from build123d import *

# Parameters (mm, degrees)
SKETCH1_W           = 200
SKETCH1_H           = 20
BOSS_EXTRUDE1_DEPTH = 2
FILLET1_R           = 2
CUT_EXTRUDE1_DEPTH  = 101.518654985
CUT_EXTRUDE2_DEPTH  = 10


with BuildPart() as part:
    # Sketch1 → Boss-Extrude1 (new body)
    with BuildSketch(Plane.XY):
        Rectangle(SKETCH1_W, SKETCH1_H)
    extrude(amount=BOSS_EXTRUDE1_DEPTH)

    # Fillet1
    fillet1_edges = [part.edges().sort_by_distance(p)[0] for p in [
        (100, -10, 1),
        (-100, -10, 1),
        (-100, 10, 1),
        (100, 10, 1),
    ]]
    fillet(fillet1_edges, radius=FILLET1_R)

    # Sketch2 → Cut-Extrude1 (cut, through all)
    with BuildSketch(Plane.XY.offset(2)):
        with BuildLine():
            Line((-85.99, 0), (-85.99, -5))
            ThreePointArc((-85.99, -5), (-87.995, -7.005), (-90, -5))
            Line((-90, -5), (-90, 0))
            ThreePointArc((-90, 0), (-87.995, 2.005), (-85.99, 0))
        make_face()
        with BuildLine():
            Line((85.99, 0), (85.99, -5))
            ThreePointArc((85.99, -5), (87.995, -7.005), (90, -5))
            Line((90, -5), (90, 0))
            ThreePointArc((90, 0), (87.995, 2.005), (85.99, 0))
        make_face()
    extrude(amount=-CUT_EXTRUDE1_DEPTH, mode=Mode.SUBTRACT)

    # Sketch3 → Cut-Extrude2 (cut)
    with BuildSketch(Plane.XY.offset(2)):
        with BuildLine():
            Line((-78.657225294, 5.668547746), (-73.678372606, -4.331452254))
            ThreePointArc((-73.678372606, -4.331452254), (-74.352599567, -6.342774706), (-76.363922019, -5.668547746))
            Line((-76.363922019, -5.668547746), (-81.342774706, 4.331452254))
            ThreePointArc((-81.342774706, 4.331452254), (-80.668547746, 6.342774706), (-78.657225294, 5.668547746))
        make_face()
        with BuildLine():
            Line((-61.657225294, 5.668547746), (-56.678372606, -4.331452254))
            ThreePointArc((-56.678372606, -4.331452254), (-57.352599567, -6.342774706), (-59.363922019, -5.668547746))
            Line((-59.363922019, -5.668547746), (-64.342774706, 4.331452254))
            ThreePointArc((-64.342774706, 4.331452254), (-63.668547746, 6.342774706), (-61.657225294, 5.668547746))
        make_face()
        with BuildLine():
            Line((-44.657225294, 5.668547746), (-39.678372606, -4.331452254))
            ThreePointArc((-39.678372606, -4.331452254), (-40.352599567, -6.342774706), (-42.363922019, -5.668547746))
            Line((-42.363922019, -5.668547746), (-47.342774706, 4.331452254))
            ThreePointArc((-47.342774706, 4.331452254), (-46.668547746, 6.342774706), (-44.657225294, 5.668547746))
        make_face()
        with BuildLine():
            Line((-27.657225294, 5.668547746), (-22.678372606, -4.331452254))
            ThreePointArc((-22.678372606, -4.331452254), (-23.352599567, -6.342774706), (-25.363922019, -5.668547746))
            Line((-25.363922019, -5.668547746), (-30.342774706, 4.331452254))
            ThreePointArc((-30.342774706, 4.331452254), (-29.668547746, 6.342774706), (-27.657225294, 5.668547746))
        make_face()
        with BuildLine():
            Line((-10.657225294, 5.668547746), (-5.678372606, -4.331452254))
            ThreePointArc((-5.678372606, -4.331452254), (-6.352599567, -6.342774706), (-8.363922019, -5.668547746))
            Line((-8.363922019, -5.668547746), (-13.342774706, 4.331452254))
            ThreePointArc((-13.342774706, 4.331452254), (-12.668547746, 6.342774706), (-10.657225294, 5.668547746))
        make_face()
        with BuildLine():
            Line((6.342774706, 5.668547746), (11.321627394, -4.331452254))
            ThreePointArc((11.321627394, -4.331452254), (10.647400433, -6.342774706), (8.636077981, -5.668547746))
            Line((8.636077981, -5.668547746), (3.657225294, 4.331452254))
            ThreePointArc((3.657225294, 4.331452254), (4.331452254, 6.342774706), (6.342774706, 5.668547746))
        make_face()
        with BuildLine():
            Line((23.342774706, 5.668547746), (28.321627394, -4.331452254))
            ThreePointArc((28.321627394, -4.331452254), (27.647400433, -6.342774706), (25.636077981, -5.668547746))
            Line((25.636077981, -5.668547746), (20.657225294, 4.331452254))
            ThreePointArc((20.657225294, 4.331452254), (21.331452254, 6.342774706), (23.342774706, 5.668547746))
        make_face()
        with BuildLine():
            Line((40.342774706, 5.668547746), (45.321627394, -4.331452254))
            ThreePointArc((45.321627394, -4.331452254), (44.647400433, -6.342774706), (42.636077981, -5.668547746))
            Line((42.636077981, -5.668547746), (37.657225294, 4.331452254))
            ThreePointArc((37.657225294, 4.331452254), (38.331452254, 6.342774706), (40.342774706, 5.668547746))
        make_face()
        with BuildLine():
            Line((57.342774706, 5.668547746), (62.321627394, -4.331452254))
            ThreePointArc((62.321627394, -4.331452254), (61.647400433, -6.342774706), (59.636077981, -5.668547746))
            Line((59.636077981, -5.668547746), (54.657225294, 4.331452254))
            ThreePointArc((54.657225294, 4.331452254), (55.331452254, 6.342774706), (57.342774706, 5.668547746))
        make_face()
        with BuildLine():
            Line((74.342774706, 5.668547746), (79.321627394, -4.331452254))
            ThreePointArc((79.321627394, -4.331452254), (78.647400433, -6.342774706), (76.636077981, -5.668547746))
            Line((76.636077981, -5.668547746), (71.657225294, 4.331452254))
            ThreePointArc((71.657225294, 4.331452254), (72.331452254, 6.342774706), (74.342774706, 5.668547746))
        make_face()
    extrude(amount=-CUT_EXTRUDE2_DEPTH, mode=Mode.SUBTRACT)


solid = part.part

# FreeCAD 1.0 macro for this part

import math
import FreeCAD as App
import Part
import Sketcher
from FreeCAD import Vector


def edges_at(feature, points):
    """Names of the edges that pass closest to the given points."""
    edges = feature.Shape.Edges
    near = lambda p: min(range(len(edges)), key=lambda i: edges[i].distToShape(Part.Vertex(*p))[0])
    return sorted({f"Edge{near(p) + 1}" for p in points})


def add_polygon(sketch, points):
    """Adds a closed chain of lines whose ends are joined by coincident constraints."""
    first, n = sketch.GeometryCount, len(points)
    for a, b in zip(points, points[1:] + points[:1]):
        sketch.addGeometry(Part.LineSegment(App.Vector(*a, 0), App.Vector(*b, 0)), False)
    for i in range(n):
        sketch.addConstraint(Sketcher.Constraint("Coincident", first + i, 2, first + (i + 1) % n, 1))

doc = App.newDocument("Part")
body = doc.addObject("PartDesign::Body", "Body")

sketch1 = body.newObject("Sketcher::SketchObject", "Sketch")
sketch1.AttachmentSupport = (doc.getObject("XY_Plane"), [""])
sketch1.MapMode = "FlatFace"
add_polygon(sketch1, [(-100, 10), (-100, -10), (100, -10), (100, 10)])
sketch1.addConstraint(Sketcher.Constraint("Vertical", 0))
sketch1.addConstraint(Sketcher.Constraint("Horizontal", 1))
sketch1.addConstraint(Sketcher.Constraint("Vertical", 2))
sketch1.addConstraint(Sketcher.Constraint("Horizontal", 3))
sketch1.addConstraint(Sketcher.Constraint("Symmetric", 0, 2, 2, 2, -1, 1))
sketch1.addConstraint(Sketcher.Constraint("DistanceX", 1, 1, 1, 2, 200.0))
sketch1.addConstraint(Sketcher.Constraint("DistanceY", 0, 2, 0, 1, 20.0))
pad1 = body.newObject("PartDesign::Pad", "Pad")
pad1.Profile = sketch1
pad1.Length = 2
doc.recompute()

fillet = body.newObject("PartDesign::Fillet", "Fillet")
fillet.Base = (pad1, edges_at(pad1, [
    (100, -10, 1),
    (-100, -10, 1),
    (-100, 10, 1),
    (100, 10, 1),
]))
fillet.Radius = 2

sketch2 = body.newObject("Sketcher::SketchObject", "Sketch001")
sketch2.AttachmentSupport = (doc.getObject("XY_Plane"), [""])
sketch2.MapMode = "FlatFace"
sketch2.AttachmentOffset = App.Placement(Vector(0, 0, 2), App.Rotation())
sketch2.addGeometry(Part.LineSegment(Vector(-85.99, -5, 0), Vector(-85.99, 0, 0)), False)
sketch2.addGeometry(Part.ArcOfCircle(Part.Circle(Vector(-87.995, 0, 0), Vector(0, 0, 1), 2.005), math.radians(0), math.radians(180)), False)
sketch2.addGeometry(Part.LineSegment(Vector(-90, 0, 0), Vector(-90, -5, 0)), False)
sketch2.addGeometry(Part.ArcOfCircle(Part.Circle(Vector(-87.995, -5, 0), Vector(0, 0, 1), 2.005), math.radians(180), math.radians(360)), False)
sketch2.addGeometry(Part.LineSegment(Vector(85.99, 0, 0), Vector(85.99, -5, 0)), False)
sketch2.addGeometry(Part.ArcOfCircle(Part.Circle(Vector(87.995, -5, 0), Vector(0, 0, 1), 2.005), math.radians(180), math.radians(360)), False)
sketch2.addGeometry(Part.LineSegment(Vector(90, -5, 0), Vector(90, 0, 0)), False)
sketch2.addGeometry(Part.ArcOfCircle(Part.Circle(Vector(87.995, 0, 0), Vector(0, 0, 1), 2.005), math.radians(0), math.radians(180)), False)
sketch2.addConstraint(Sketcher.Constraint("Tangent", 0, 2, 1, 1))
sketch2.addConstraint(Sketcher.Constraint("Tangent", 1, 2, 2, 1))
sketch2.addConstraint(Sketcher.Constraint("Tangent", 2, 2, 3, 1))
sketch2.addConstraint(Sketcher.Constraint("Tangent", 3, 2, 0, 1))
sketch2.addConstraint(Sketcher.Constraint("Tangent", 4, 2, 5, 1))
sketch2.addConstraint(Sketcher.Constraint("Tangent", 5, 2, 6, 1))
sketch2.addConstraint(Sketcher.Constraint("Tangent", 6, 2, 7, 1))
sketch2.addConstraint(Sketcher.Constraint("Tangent", 7, 2, 4, 1))
sketch2.addConstraint(Sketcher.Constraint("Vertical", 0))
sketch2.addConstraint(Sketcher.Constraint("Vertical", 2))
sketch2.addConstraint(Sketcher.Constraint("Vertical", 4))
sketch2.addConstraint(Sketcher.Constraint("Vertical", 6))
sketch2.addConstraint(Sketcher.Constraint("Equal", 3, 5))
sketch2.addConstraint(Sketcher.Constraint("Symmetric", 1, 3, 7, 3, -1, 1))
sketch2.addConstraint(Sketcher.Constraint("PointOnObject", 1, 3, -1))
sketch2.addConstraint(Sketcher.Constraint("Horizontal", 3, 3, 5, 3))
sketch2.addConstraint(Sketcher.Constraint("DistanceY", 0, 1, 0, 2, 5.0))
sketch2.addConstraint(Sketcher.Constraint("DistanceX", 1, 2, -1, 1, 90.0))
sketch2.addConstraint(Sketcher.Constraint("Radius", 1, 2.005))
pocket1 = body.newObject("PartDesign::Pocket", "Pocket")
pocket1.Profile = sketch2
pocket1.Type = "ThroughAll"

sketch3 = body.newObject("Sketcher::SketchObject", "Sketch002")
sketch3.AttachmentSupport = (doc.getObject("XY_Plane"), [""])
sketch3.MapMode = "FlatFace"
sketch3.AttachmentOffset = App.Placement(Vector(0, 0, 2), App.Rotation())
sketch3.addGeometry(Part.LineSegment(Vector(-73.678373, -4.331452, 0), Vector(-78.657225, 5.668548, 0)), False)
sketch3.addGeometry(Part.ArcOfCircle(Part.Circle(Vector(-80, 5, 0), Vector(0, 0, 1), 1.5), math.radians(26.468037), math.radians(206.468037)), False)
sketch3.addGeometry(Part.LineSegment(Vector(-81.342775, 4.331452, 0), Vector(-76.363922, -5.668548, 0)), False)
sketch3.addGeometry(Part.ArcOfCircle(Part.Circle(Vector(-75.021147, -5, 0), Vector(0, 0, 1), 1.5), math.radians(-153.531963), math.radians(26.468037)), False)
sketch3.addGeometry(Part.LineSegment(Vector(-56.678373, -4.331452, 0), Vector(-61.657225, 5.668548, 0)), False)
sketch3.addGeometry(Part.ArcOfCircle(Part.Circle(Vector(-63, 5, 0), Vector(0, 0, 1), 1.5), math.radians(26.468037), math.radians(206.468037)), False)
sketch3.addGeometry(Part.LineSegment(Vector(-64.342775, 4.331452, 0), Vector(-59.363922, -5.668548, 0)), False)
sketch3.addGeometry(Part.ArcOfCircle(Part.Circle(Vector(-58.021147, -5, 0), Vector(0, 0, 1), 1.5), math.radians(-153.531963), math.radians(26.468037)), False)
sketch3.addGeometry(Part.LineSegment(Vector(-39.678373, -4.331452, 0), Vector(-44.657225, 5.668548, 0)), False)
sketch3.addGeometry(Part.ArcOfCircle(Part.Circle(Vector(-46, 5, 0), Vector(0, 0, 1), 1.5), math.radians(26.468037), math.radians(206.468037)), False)
sketch3.addGeometry(Part.LineSegment(Vector(-47.342775, 4.331452, 0), Vector(-42.363922, -5.668548, 0)), False)
sketch3.addGeometry(Part.ArcOfCircle(Part.Circle(Vector(-41.021147, -5, 0), Vector(0, 0, 1), 1.5), math.radians(-153.531963), math.radians(26.468037)), False)
sketch3.addGeometry(Part.LineSegment(Vector(-22.678373, -4.331452, 0), Vector(-27.657225, 5.668548, 0)), False)
sketch3.addGeometry(Part.ArcOfCircle(Part.Circle(Vector(-29, 5, 0), Vector(0, 0, 1), 1.5), math.radians(26.468037), math.radians(206.468037)), False)
sketch3.addGeometry(Part.LineSegment(Vector(-30.342775, 4.331452, 0), Vector(-25.363922, -5.668548, 0)), False)
sketch3.addGeometry(Part.ArcOfCircle(Part.Circle(Vector(-24.021147, -5, 0), Vector(0, 0, 1), 1.5), math.radians(-153.531963), math.radians(26.468037)), False)
sketch3.addGeometry(Part.LineSegment(Vector(-5.678373, -4.331452, 0), Vector(-10.657225, 5.668548, 0)), False)
sketch3.addGeometry(Part.ArcOfCircle(Part.Circle(Vector(-12, 5, 0), Vector(0, 0, 1), 1.5), math.radians(26.468037), math.radians(206.468037)), False)
sketch3.addGeometry(Part.LineSegment(Vector(-13.342775, 4.331452, 0), Vector(-8.363922, -5.668548, 0)), False)
sketch3.addGeometry(Part.ArcOfCircle(Part.Circle(Vector(-7.021147, -5, 0), Vector(0, 0, 1), 1.5), math.radians(-153.531963), math.radians(26.468037)), False)
sketch3.addGeometry(Part.LineSegment(Vector(11.321627, -4.331452, 0), Vector(6.342775, 5.668548, 0)), False)
sketch3.addGeometry(Part.ArcOfCircle(Part.Circle(Vector(5, 5, 0), Vector(0, 0, 1), 1.5), math.radians(26.468037), math.radians(206.468037)), False)
sketch3.addGeometry(Part.LineSegment(Vector(3.657225, 4.331452, 0), Vector(8.636078, -5.668548, 0)), False)
sketch3.addGeometry(Part.ArcOfCircle(Part.Circle(Vector(9.978853, -5, 0), Vector(0, 0, 1), 1.5), math.radians(-153.531963), math.radians(26.468037)), False)
sketch3.addGeometry(Part.LineSegment(Vector(28.321627, -4.331452, 0), Vector(23.342775, 5.668548, 0)), False)
sketch3.addGeometry(Part.ArcOfCircle(Part.Circle(Vector(22, 5, 0), Vector(0, 0, 1), 1.5), math.radians(26.468037), math.radians(206.468037)), False)
sketch3.addGeometry(Part.LineSegment(Vector(20.657225, 4.331452, 0), Vector(25.636078, -5.668548, 0)), False)
sketch3.addGeometry(Part.ArcOfCircle(Part.Circle(Vector(26.978853, -5, 0), Vector(0, 0, 1), 1.5), math.radians(-153.531963), math.radians(26.468037)), False)
sketch3.addGeometry(Part.LineSegment(Vector(45.321627, -4.331452, 0), Vector(40.342775, 5.668548, 0)), False)
sketch3.addGeometry(Part.ArcOfCircle(Part.Circle(Vector(39, 5, 0), Vector(0, 0, 1), 1.5), math.radians(26.468037), math.radians(206.468037)), False)
sketch3.addGeometry(Part.LineSegment(Vector(37.657225, 4.331452, 0), Vector(42.636078, -5.668548, 0)), False)
sketch3.addGeometry(Part.ArcOfCircle(Part.Circle(Vector(43.978853, -5, 0), Vector(0, 0, 1), 1.5), math.radians(-153.531963), math.radians(26.468037)), False)
sketch3.addGeometry(Part.LineSegment(Vector(62.321627, -4.331452, 0), Vector(57.342775, 5.668548, 0)), False)
sketch3.addGeometry(Part.ArcOfCircle(Part.Circle(Vector(56, 5, 0), Vector(0, 0, 1), 1.5), math.radians(26.468037), math.radians(206.468037)), False)
sketch3.addGeometry(Part.LineSegment(Vector(54.657225, 4.331452, 0), Vector(59.636078, -5.668548, 0)), False)
sketch3.addGeometry(Part.ArcOfCircle(Part.Circle(Vector(60.978853, -5, 0), Vector(0, 0, 1), 1.5), math.radians(-153.531963), math.radians(26.468037)), False)
sketch3.addGeometry(Part.LineSegment(Vector(79.321627, -4.331452, 0), Vector(74.342775, 5.668548, 0)), False)
sketch3.addGeometry(Part.ArcOfCircle(Part.Circle(Vector(73, 5, 0), Vector(0, 0, 1), 1.5), math.radians(26.468037), math.radians(206.468037)), False)
sketch3.addGeometry(Part.LineSegment(Vector(71.657225, 4.331452, 0), Vector(76.636078, -5.668548, 0)), False)
sketch3.addGeometry(Part.ArcOfCircle(Part.Circle(Vector(77.978853, -5, 0), Vector(0, 0, 1), 1.5), math.radians(-153.531963), math.radians(26.468037)), False)
sketch3.addConstraint(Sketcher.Constraint("Tangent", 0, 2, 1, 1))
sketch3.addConstraint(Sketcher.Constraint("Tangent", 1, 2, 2, 1))
sketch3.addConstraint(Sketcher.Constraint("Tangent", 2, 2, 3, 1))
sketch3.addConstraint(Sketcher.Constraint("Tangent", 3, 2, 0, 1))
sketch3.addConstraint(Sketcher.Constraint("Tangent", 4, 2, 5, 1))
sketch3.addConstraint(Sketcher.Constraint("Tangent", 5, 2, 6, 1))
sketch3.addConstraint(Sketcher.Constraint("Tangent", 6, 2, 7, 1))
sketch3.addConstraint(Sketcher.Constraint("Tangent", 7, 2, 4, 1))
sketch3.addConstraint(Sketcher.Constraint("Tangent", 8, 2, 9, 1))
sketch3.addConstraint(Sketcher.Constraint("Tangent", 9, 2, 10, 1))
sketch3.addConstraint(Sketcher.Constraint("Tangent", 10, 2, 11, 1))
sketch3.addConstraint(Sketcher.Constraint("Tangent", 11, 2, 8, 1))
sketch3.addConstraint(Sketcher.Constraint("Tangent", 12, 2, 13, 1))
sketch3.addConstraint(Sketcher.Constraint("Tangent", 13, 2, 14, 1))
sketch3.addConstraint(Sketcher.Constraint("Tangent", 14, 2, 15, 1))
sketch3.addConstraint(Sketcher.Constraint("Tangent", 15, 2, 12, 1))
sketch3.addConstraint(Sketcher.Constraint("Tangent", 16, 2, 17, 1))
sketch3.addConstraint(Sketcher.Constraint("Tangent", 17, 2, 18, 1))
sketch3.addConstraint(Sketcher.Constraint("Tangent", 18, 2, 19, 1))
sketch3.addConstraint(Sketcher.Constraint("Tangent", 19, 2, 16, 1))
sketch3.addConstraint(Sketcher.Constraint("Tangent", 20, 2, 21, 1))
sketch3.addConstraint(Sketcher.Constraint("Tangent", 21, 2, 22, 1))
sketch3.addConstraint(Sketcher.Constraint("Tangent", 22, 2, 23, 1))
sketch3.addConstraint(Sketcher.Constraint("Tangent", 23, 2, 20, 1))
sketch3.addConstraint(Sketcher.Constraint("Tangent", 24, 2, 25, 1))
sketch3.addConstraint(Sketcher.Constraint("Tangent", 25, 2, 26, 1))
sketch3.addConstraint(Sketcher.Constraint("Tangent", 26, 2, 27, 1))
sketch3.addConstraint(Sketcher.Constraint("Tangent", 27, 2, 24, 1))
sketch3.addConstraint(Sketcher.Constraint("Tangent", 28, 2, 29, 1))
sketch3.addConstraint(Sketcher.Constraint("Tangent", 29, 2, 30, 1))
sketch3.addConstraint(Sketcher.Constraint("Tangent", 30, 2, 31, 1))
sketch3.addConstraint(Sketcher.Constraint("Tangent", 31, 2, 28, 1))
sketch3.addConstraint(Sketcher.Constraint("Tangent", 32, 2, 33, 1))
sketch3.addConstraint(Sketcher.Constraint("Tangent", 33, 2, 34, 1))
sketch3.addConstraint(Sketcher.Constraint("Tangent", 34, 2, 35, 1))
sketch3.addConstraint(Sketcher.Constraint("Tangent", 35, 2, 32, 1))
sketch3.addConstraint(Sketcher.Constraint("Tangent", 36, 2, 37, 1))
sketch3.addConstraint(Sketcher.Constraint("Tangent", 37, 2, 38, 1))
sketch3.addConstraint(Sketcher.Constraint("Tangent", 38, 2, 39, 1))
sketch3.addConstraint(Sketcher.Constraint("Tangent", 39, 2, 36, 1))
sketch3.addConstraint(Sketcher.Constraint("Equal", 1, 3))
sketch3.addConstraint(Sketcher.Constraint("Equal", 3, 5))
sketch3.addConstraint(Sketcher.Constraint("Equal", 5, 7))
sketch3.addConstraint(Sketcher.Constraint("Equal", 7, 9))
sketch3.addConstraint(Sketcher.Constraint("Equal", 9, 11))
sketch3.addConstraint(Sketcher.Constraint("Equal", 11, 13))
sketch3.addConstraint(Sketcher.Constraint("Equal", 13, 15))
sketch3.addConstraint(Sketcher.Constraint("Equal", 15, 17))
sketch3.addConstraint(Sketcher.Constraint("Equal", 17, 19))
sketch3.addConstraint(Sketcher.Constraint("Equal", 19, 21))
sketch3.addConstraint(Sketcher.Constraint("Equal", 21, 23))
sketch3.addConstraint(Sketcher.Constraint("Equal", 23, 25))
sketch3.addConstraint(Sketcher.Constraint("Equal", 25, 27))
sketch3.addConstraint(Sketcher.Constraint("Equal", 27, 29))
sketch3.addConstraint(Sketcher.Constraint("Equal", 29, 31))
sketch3.addConstraint(Sketcher.Constraint("Equal", 31, 33))
sketch3.addConstraint(Sketcher.Constraint("Equal", 33, 35))
sketch3.addConstraint(Sketcher.Constraint("Equal", 35, 37))
sketch3.addConstraint(Sketcher.Constraint("Equal", 37, 39))
sketch3.addConstraint(Sketcher.Constraint("Parallel", 2, 4))
sketch3.addConstraint(Sketcher.Constraint("Parallel", 6, 8))
sketch3.addConstraint(Sketcher.Constraint("Parallel", 10, 12))
sketch3.addConstraint(Sketcher.Constraint("Parallel", 14, 16))
sketch3.addConstraint(Sketcher.Constraint("Parallel", 18, 20))
sketch3.addConstraint(Sketcher.Constraint("Parallel", 22, 24))
sketch3.addConstraint(Sketcher.Constraint("Parallel", 26, 28))
sketch3.addConstraint(Sketcher.Constraint("Parallel", 30, 32))
sketch3.addConstraint(Sketcher.Constraint("Parallel", 34, 36))
sketch3.addConstraint(Sketcher.Constraint("Horizontal", 1, 3, 5, 3))
sketch3.addConstraint(Sketcher.Constraint("Horizontal", 3, 3, 7, 3))
sketch3.addConstraint(Sketcher.Constraint("Horizontal", 5, 3, 9, 3))
sketch3.addConstraint(Sketcher.Constraint("Horizontal", 7, 3, 11, 3))
sketch3.addConstraint(Sketcher.Constraint("Horizontal", 9, 3, 13, 3))
sketch3.addConstraint(Sketcher.Constraint("Horizontal", 11, 3, 15, 3))
sketch3.addConstraint(Sketcher.Constraint("Horizontal", 13, 3, 17, 3))
sketch3.addConstraint(Sketcher.Constraint("Horizontal", 15, 3, 19, 3))
sketch3.addConstraint(Sketcher.Constraint("Horizontal", 17, 3, 21, 3))
sketch3.addConstraint(Sketcher.Constraint("Horizontal", 19, 3, 23, 3))
sketch3.addConstraint(Sketcher.Constraint("Horizontal", 21, 3, 25, 3))
sketch3.addConstraint(Sketcher.Constraint("Horizontal", 23, 3, 27, 3))
sketch3.addConstraint(Sketcher.Constraint("Horizontal", 25, 3, 29, 3))
sketch3.addConstraint(Sketcher.Constraint("Horizontal", 27, 3, 31, 3))
sketch3.addConstraint(Sketcher.Constraint("Horizontal", 29, 3, 33, 3))
sketch3.addConstraint(Sketcher.Constraint("Horizontal", 31, 3, 35, 3))
sketch3.addConstraint(Sketcher.Constraint("Horizontal", 33, 3, 37, 3))
sketch3.addConstraint(Sketcher.Constraint("Horizontal", 35, 3, 39, 3))
sketch3.addConstraint(Sketcher.Constraint("Radius", 1, 1.5))
sketch3.addConstraint(Sketcher.Constraint("DistanceX", 1, 3, -1, 1, 80.0))
sketch3.addConstraint(Sketcher.Constraint("DistanceY", -1, 1, 1, 3, 5.0))
sketch3.addConstraint(Sketcher.Constraint("DistanceY", 3, 3, -1, 1, 5.0))
sketch3.addConstraint(Sketcher.Constraint("DistanceX", 5, 3, -1, 1, 63.0))
sketch3.addConstraint(Sketcher.Constraint("DistanceX", 9, 3, -1, 1, 46.0))
sketch3.addConstraint(Sketcher.Constraint("DistanceX", 13, 3, -1, 1, 29.0))
sketch3.addConstraint(Sketcher.Constraint("DistanceX", 17, 3, -1, 1, 12.0))
sketch3.addConstraint(Sketcher.Constraint("DistanceX", -1, 1, 21, 3, 5.0))
sketch3.addConstraint(Sketcher.Constraint("DistanceX", -1, 1, 25, 3, 22.0))
sketch3.addConstraint(Sketcher.Constraint("DistanceX", -1, 1, 29, 3, 39.0))
sketch3.addConstraint(Sketcher.Constraint("DistanceX", -1, 1, 33, 3, 56.0))
sketch3.addConstraint(Sketcher.Constraint("DistanceX", -1, 1, 37, 3, 73.0))
sketch3.addConstraint(Sketcher.Constraint("Distance", 0, 11.170899))
pocket2 = body.newObject("PartDesign::Pocket", "Pocket001")
pocket2.Profile = sketch3
pocket2.Length = 10

doc.recompute()
